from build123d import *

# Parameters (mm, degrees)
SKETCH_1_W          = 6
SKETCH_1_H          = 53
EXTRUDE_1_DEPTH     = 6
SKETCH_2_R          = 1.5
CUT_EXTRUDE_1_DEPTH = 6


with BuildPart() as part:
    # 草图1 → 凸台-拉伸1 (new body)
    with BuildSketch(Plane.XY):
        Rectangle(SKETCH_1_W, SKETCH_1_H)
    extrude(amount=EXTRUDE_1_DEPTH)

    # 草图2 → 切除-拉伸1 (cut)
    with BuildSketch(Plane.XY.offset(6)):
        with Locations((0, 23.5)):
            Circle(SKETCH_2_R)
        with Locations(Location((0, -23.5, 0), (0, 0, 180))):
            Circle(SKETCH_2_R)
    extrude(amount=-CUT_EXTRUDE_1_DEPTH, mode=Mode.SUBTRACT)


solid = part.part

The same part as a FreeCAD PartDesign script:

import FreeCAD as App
import Part
import Sketcher
from FreeCAD import Vector


def add_polygon(sketch, points):
    """Adds a closed chain of lines whose ends are joined by coincident constraints."""
    first, n = sketch.GeometryCount, len(points)
    for a, b in zip(points, points[1:] + points[:1]):
        sketch.addGeometry(Part.LineSegment(App.Vector(*a, 0), App.Vector(*b, 0)), False)
    for i in range(n):
        sketch.addConstraint(Sketcher.Constraint("Coincident", first + i, 2, first + (i + 1) % n, 1))

doc = App.newDocument("Part")
body = doc.addObject("PartDesign::Body", "Body")

# Sketch on XY plane
sketch1 = body.newObject("Sketcher::SketchObject", "Sketch")
sketch1.AttachmentSupport = (doc.getObject("XY_Plane"), [""])
sketch1.MapMode = "FlatFace"
add_polygon(sketch1, [(-3, 26), (-3, -26), (3, -26), (3, 26)])  # lines 0-3
sketch1.addConstraint([
    Sketcher.Constraint("Vertical", 0),
    Sketcher.Constraint("Horizontal", 1),
    Sketcher.Constraint("Vertical", 2),
    Sketcher.Constraint("Horizontal", 3),
    Sketcher.Constraint("Symmetric", 0, 2, 2, 2, -1, 1),
    Sketcher.Constraint("DistanceX", 1, 1, 1, 2, 6.0),
    Sketcher.Constraint("DistanceY", 0, 2, 0, 1, 53.0),
])
pad1 = body.newObject("PartDesign::Pad", "Pad")
pad1.Profile = sketch1
pad1.Length = 6

# Sketch on XY plane
sketch2 = body.newObject("Sketcher::SketchObject", "Sketch001")
sketch2.AttachmentSupport = (doc.getObject("XY_Plane"), [""])
sketch2.MapMode = "FlatFace"
sketch2.AttachmentOffset = App.Placement(Vector(0, 0, 6), App.Rotation())
sketch2.addGeometry([
    Part.Circle(Vector(0, 23.5, 0), Vector(0, 0, 1), 1.5),
    Part.Circle(Vector(0, -23.5, 0), Vector(0, 0, 1), 1.5),
], False)
sketch2.addConstraint([
    Sketcher.Constraint("Equal", 0, 1),
    Sketcher.Constraint("Symmetric", 0, 3, 1, 3, -1, 1),
    Sketcher.Constraint("PointOnObject", 0, 3, -2),
    Sketcher.Constraint("Diameter", 0, 3.0),
    Sketcher.Constraint("DistanceY", 1, 3, 0, 3, 47.0),
])
pocket1 = body.newObject("PartDesign::Pocket", "Pocket")
pocket1.Profile = sketch2
pocket1.Length = 6

doc.recompute()
